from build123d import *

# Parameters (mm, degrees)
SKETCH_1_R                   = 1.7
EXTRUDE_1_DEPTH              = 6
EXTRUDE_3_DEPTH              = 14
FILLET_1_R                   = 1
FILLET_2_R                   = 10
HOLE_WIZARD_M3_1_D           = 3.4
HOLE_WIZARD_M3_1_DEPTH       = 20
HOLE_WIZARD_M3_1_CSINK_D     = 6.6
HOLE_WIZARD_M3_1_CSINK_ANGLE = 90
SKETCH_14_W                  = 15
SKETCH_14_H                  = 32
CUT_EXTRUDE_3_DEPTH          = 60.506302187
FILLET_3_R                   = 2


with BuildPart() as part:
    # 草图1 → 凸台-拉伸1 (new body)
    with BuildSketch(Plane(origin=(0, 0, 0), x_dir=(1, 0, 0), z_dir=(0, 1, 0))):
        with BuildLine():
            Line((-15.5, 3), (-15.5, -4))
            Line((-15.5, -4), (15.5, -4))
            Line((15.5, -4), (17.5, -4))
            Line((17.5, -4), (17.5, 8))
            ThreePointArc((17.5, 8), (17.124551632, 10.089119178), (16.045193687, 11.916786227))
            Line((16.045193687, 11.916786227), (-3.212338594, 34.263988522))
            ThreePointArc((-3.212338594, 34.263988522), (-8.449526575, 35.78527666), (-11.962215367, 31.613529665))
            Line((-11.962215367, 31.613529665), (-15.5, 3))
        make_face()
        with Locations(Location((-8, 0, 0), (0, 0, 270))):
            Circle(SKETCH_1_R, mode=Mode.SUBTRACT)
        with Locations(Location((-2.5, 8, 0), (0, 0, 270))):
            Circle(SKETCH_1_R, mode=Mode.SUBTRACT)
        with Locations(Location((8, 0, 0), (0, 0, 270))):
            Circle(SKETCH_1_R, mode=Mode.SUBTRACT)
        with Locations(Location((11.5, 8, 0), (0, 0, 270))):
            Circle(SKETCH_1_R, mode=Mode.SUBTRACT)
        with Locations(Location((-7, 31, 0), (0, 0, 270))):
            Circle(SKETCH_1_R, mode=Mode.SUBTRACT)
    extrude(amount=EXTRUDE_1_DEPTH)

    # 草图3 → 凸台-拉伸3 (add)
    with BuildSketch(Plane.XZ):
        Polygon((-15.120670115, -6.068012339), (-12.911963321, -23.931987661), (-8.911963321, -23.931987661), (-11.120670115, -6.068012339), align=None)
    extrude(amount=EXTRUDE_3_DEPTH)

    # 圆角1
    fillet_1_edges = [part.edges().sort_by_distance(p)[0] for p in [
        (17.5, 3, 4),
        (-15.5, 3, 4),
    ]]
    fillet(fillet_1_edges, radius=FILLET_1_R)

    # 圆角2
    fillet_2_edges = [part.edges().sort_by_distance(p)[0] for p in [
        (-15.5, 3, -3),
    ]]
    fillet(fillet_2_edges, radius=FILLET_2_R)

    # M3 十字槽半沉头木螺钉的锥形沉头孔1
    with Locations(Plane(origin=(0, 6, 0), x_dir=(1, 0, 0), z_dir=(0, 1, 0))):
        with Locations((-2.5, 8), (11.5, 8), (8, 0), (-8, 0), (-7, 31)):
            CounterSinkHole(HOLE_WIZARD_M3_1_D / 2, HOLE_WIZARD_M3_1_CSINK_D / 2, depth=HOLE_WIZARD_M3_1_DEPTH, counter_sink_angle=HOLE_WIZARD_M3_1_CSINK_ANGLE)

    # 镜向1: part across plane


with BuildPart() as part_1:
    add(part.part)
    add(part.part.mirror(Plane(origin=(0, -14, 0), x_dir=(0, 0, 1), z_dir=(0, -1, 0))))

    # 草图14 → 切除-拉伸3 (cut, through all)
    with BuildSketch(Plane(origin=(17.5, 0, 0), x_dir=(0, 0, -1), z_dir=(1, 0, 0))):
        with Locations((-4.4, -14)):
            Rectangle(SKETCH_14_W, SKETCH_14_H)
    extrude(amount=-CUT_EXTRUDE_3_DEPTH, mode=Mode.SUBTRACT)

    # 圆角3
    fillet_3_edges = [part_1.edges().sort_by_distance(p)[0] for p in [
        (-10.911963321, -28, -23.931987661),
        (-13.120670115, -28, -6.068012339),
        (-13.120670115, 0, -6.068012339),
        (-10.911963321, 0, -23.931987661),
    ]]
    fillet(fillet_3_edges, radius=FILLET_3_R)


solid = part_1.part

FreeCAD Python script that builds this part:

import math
import FreeCAD as App
import Part
import Sketcher
Q = App.Units.Quantity


def edges_at(feature, points):
    """Names of the edges that pass closest to the given points."""
    edges = feature.Shape.Edges
    near = lambda p: min(range(len(edges)), key=lambda i: edges[i].distToShape(Part.Vertex(*p))[0])
    return sorted({f"Edge{near(p) + 1}" for p in points})

doc = App.newDocument("Part")
body = doc.addObject("PartDesign::Body", "Body")

# Sketch on XZ plane
sketch1 = body.newObject("Sketcher::SketchObject", "Sketch")
sketch1.AttachmentSupport = (doc.getObject("XZ_Plane"), [""])
sketch1.MapMode = "FlatFace"
sketch1.addGeometry([
    Part.LineSegment(App.Vector(-15.5, -3, 0), App.Vector(-15.5, 4, 0)),  # 0
    Part.LineSegment(App.Vector(-15.5, 4, 0), App.Vector(17.5, 4, 0)),  # 1
    Part.LineSegment(App.Vector(17.5, 4, 0), App.Vector(17.5, -8, 0)),  # 2
    Part.ArcOfCircle(Part.Circle(App.Vector(11.5, -8, 0), App.Vector(0, 0, 1), 6), math.radians(-41), math.radians(0)),  # 3
    Part.LineSegment(App.Vector(16, -11.9, 0), App.Vector(-3.2, -34.3, 0)),  # 4
    Part.ArcOfCircle(Part.Circle(App.Vector(-7, -31, 0), App.Vector(0, 0, 1), 5), math.radians(-173), math.radians(-41)),  # 5
    Part.LineSegment(App.Vector(-12, -31.6, 0), App.Vector(-15.5, -3, 0)),  # 6
    Part.Circle(App.Vector(-8, 0, 0), App.Vector(0, 0, 1), 1.7),  # 7
    Part.Circle(App.Vector(-2.5, -8, 0), App.Vector(0, 0, 1), 1.7),  # 8
    Part.Circle(App.Vector(8, 0, 0), App.Vector(0, 0, 1), 1.7),  # 9
    Part.Circle(App.Vector(11.5, -8, 0), App.Vector(0, 0, 1), 1.7),  # 10
    Part.Circle(App.Vector(-7, -31, 0), App.Vector(0, 0, 1), 1.7),  # 11
], False)
sketch1.addConstraint([
    Sketcher.Constraint("Coincident", 0, 2, 1, 1),
    Sketcher.Constraint("Coincident", 1, 2, 2, 1),
    Sketcher.Constraint("Tangent", 2, 2, 3, 2),
    Sketcher.Constraint("Tangent", 3, 1, 4, 1),
    Sketcher.Constraint("Tangent", 4, 2, 5, 2),
    Sketcher.Constraint("Tangent", 5, 1, 6, 1),
    Sketcher.Constraint("Coincident", 6, 2, 0, 1),
    Sketcher.Constraint("Vertical", 0),
    Sketcher.Constraint("Horizontal", 1),
    Sketcher.Constraint("Vertical", 2),
    Sketcher.Constraint("Coincident", 10, 3, 3, 3),
    Sketcher.Constraint("Coincident", 11, 3, 5, 3),
    Sketcher.Constraint("Equal", 7, 8),
    Sketcher.Constraint("Equal", 8, 9),
    Sketcher.Constraint("Equal", 9, 10),
    Sketcher.Constraint("Equal", 10, 11),
    Sketcher.Constraint("Symmetric", 7, 3, 9, 3, -1, 1),
    Sketcher.Constraint("PointOnObject", 7, 3, -1),
    Sketcher.Constraint("Horizontal", 3, 3, 8, 3),
    Sketcher.Constraint("Radius", 3, Q("6 mm")),
    Sketcher.Constraint("Radius", 5, Q("5 mm")),
    Sketcher.Constraint("Diameter", 7, Q("3.4 mm")),
    Sketcher.Constraint("DistanceX", 1, 1, 1, 2, Q("33 mm")),
    Sketcher.Constraint("DistanceY", 0, 1, 0, 2, Q("7 mm")),
    Sketcher.Constraint("DistanceY", 2, 2, 2, 1, Q("12 mm")),
    Sketcher.Constraint("DistanceY", 3, 3, -1, 1, Q("8 mm")),
    Sketcher.Constraint("DistanceX", 5, 3, -1, 1, Q("7 mm")),
    Sketcher.Constraint("DistanceY", 5, 3, -1, 1, Q("31 mm")),
    Sketcher.Constraint("DistanceX", 7, 3, -1, 1, Q("8 mm")),
    Sketcher.Constraint("DistanceX", 8, 3, 3, 3, Q("14 mm")),
    Sketcher.Constraint("Distance", 4, Q("29.5 mm")),
])
pad1 = body.newObject("PartDesign::Pad", "Pad")
pad1.Profile = sketch1
pad1.Length = 6
pad1.Reversed = True

# Sketch on XZ plane
sketch2 = body.newObject("Sketcher::SketchObject", "Sketch001")
sketch2.AttachmentSupport = (doc.getObject("XZ_Plane"), [""])
sketch2.MapMode = "FlatFace"
sketch2.addGeometry([
    Part.LineSegment(App.Vector(-15.1, -6.1, 0), App.Vector(-12.9, -23.9, 0)),
    Part.LineSegment(App.Vector(-12.9, -23.9, 0), App.Vector(-8.9, -23.9, 0)),
    Part.LineSegment(App.Vector(-8.9, -23.9, 0), App.Vector(-11.1, -6.1, 0)),
    Part.LineSegment(App.Vector(-11.1, -6.1, 0), App.Vector(-15.1, -6.1, 0)),
], False)
sketch2.addConstraint([
    Sketcher.Constraint("Coincident", 0, 2, 1, 1),
    Sketcher.Constraint("Coincident", 1, 2, 2, 1),
    Sketcher.Constraint("Coincident", 2, 2, 3, 1),
    Sketcher.Constraint("Coincident", 3, 2, 0, 1),
    Sketcher.Constraint("Horizontal", 1),
    Sketcher.Constraint("Horizontal", 3),
    Sketcher.Constraint("Parallel", 0, 2),
    Sketcher.Constraint("DistanceX", 1, 1, 1, 2, Q("4 mm")),
    Sketcher.Constraint("Distance", 0, Q("18 mm")),
    Sketcher.Constraint("DistanceX", 2, 2, -1, 1, Q("11.12067 mm")),
    Sketcher.Constraint("DistanceX", 0, 2, -1, 1, Q("12.911963 mm")),
    Sketcher.Constraint("DistanceY", 0, 2, -1, 1, Q("23.931988 mm")),
])
pad2 = body.newObject("PartDesign::Pad", "Pad001")
pad2.Profile = sketch2
pad2.Length = 14
doc.recompute()

fillet = body.newObject("PartDesign::Fillet", "Fillet")
fillet.Base = (pad2, edges_at(pad2, [(17.5, 3, 4), (-15.5, 3, 4)]))
fillet.Radius = 1
doc.recompute()

fillet2 = body.newObject("PartDesign::Fillet", "Fillet001")
fillet2.Base = (fillet, edges_at(fillet, [(-15.5, 3, -3)]))
fillet2.Radius = 10

# Sketch on XZ plane
sketch3 = body.newObject("Sketcher::SketchObject", "Sketch002")
sketch3.AttachmentSupport = (doc.getObject("XZ_Plane"), [""])
sketch3.MapMode = "FlatFace"
sketch3.AttachmentOffset = App.Placement(App.Vector(0, 0, -6), App.Rotation())
sketch3.addGeometry([
    Part.Circle(App.Vector(-2.5, -8, 0), App.Vector(0, 0, 1), 1.7),  # 0
    Part.Circle(App.Vector(11.5, -8, 0), App.Vector(0, 0, 1), 1.7),  # 1
    Part.Circle(App.Vector(8, 0, 0), App.Vector(0, 0, 1), 1.7),  # 2
    Part.Circle(App.Vector(-8, 0, 0), App.Vector(0, 0, 1), 1.7),  # 3
    Part.Circle(App.Vector(-7, -31, 0), App.Vector(0, 0, 1), 1.7),  # 4
], False)
sketch3.addConstraint([
    Sketcher.Constraint("Equal", 0, 1),
    Sketcher.Constraint("Equal", 1, 2),
    Sketcher.Constraint("Equal", 2, 3),
    Sketcher.Constraint("Equal", 3, 4),
    Sketcher.Constraint("Symmetric", 2, 3, 3, 3, -1, 1),
    Sketcher.Constraint("PointOnObject", 2, 3, -1),
    Sketcher.Constraint("Horizontal", 0, 3, 1, 3),
    Sketcher.Constraint("Diameter", 0, Q("3.4 mm")),
    Sketcher.Constraint("DistanceY", 0, 3, -1, 1, Q("8 mm")),
    Sketcher.Constraint("DistanceX", -1, 1, 2, 3, Q("8 mm")),
    Sketcher.Constraint("DistanceX", 4, 3, -1, 1, Q("7 mm")),
    Sketcher.Constraint("DistanceY", 4, 3, -1, 1, Q("31 mm")),
    Sketcher.Constraint("DistanceX", 0, 3, 1, 3, Q("14 mm")),
    Sketcher.Constraint("DistanceX", 0, 3, -1, 1, Q("2.5 mm")),
])
doc.recompute()
hole = body.newObject("PartDesign::Hole", "Hole")
hole.Profile = sketch3
hole.ThreadType = "None"
hole.Diameter = 3.4
hole.DepthType = "Dimension"
hole.Depth = 20
hole.DrillPoint = "Flat"
hole.HoleCutType = "Countersink"
hole.HoleCutDiameter = 6.6
hole.HoleCutCountersinkAngle = 90
hole.Reversed = True
body2 = doc.addObject("PartDesign::Body", "Body001")
doc.recompute()

body2.BaseFeature = body
doc.recompute()

mirroring = doc.addObject("Part::Mirroring", "Mirroring")
mirroring.Source = body
mirroring.Base = App.Vector(0, -14, 0)
mirroring.Normal = App.Vector(0, -1, 0)
body3 = doc.addObject("PartDesign::Body", "Body002")
body3.BaseFeature = mirroring
boolean = body2.newObject("PartDesign::Boolean", "Boolean")
boolean.Type = "Fuse"
boolean.addObjects([body3])
doc.recompute()

# Sketch on YZ plane
sketch4 = body2.newObject("Sketcher::SketchObject", "Sketch003")
sketch4.AttachmentSupport = (doc.getObject("YZ_Plane001"), [""])
sketch4.MapMode = "FlatFace"
sketch4.AttachmentOffset = App.Placement(App.Vector(0, 0, 17.5), App.Rotation())
sketch4.addGeometry([
    Part.LineSegment(App.Vector(2, 12, 0), App.Vector(-30, 12, 0)),
    Part.LineSegment(App.Vector(-30, 12, 0), App.Vector(-30, -3, 0)),
    Part.LineSegment(App.Vector(-30, -3, 0), App.Vector(2, -3, 0)),
    Part.LineSegment(App.Vector(2, -3, 0), App.Vector(2, 12, 0)),
], False)
sketch4.addConstraint([
    Sketcher.Constraint("Coincident", 0, 2, 1, 1),
    Sketcher.Constraint("Coincident", 1, 2, 2, 1),
    Sketcher.Constraint("Coincident", 2, 2, 3, 1),
    Sketcher.Constraint("Coincident", 3, 2, 0, 1),
    Sketcher.Constraint("Horizontal", 0),
    Sketcher.Constraint("Vertical", 1),
    Sketcher.Constraint("Horizontal", 2),
    Sketcher.Constraint("Vertical", 3),
    Sketcher.Constraint("DistanceX", 0, 2, 0, 1, Q("32 mm")),
    Sketcher.Constraint("DistanceY", 1, 2, 1, 1, Q("15 mm")),
    Sketcher.Constraint("DistanceX", 0, 2, -1, 1, Q("30 mm")),
    Sketcher.Constraint("DistanceY", -1, 1, 0, 2, Q("11.9 mm")),
])
pocket1 = body2.newObject("PartDesign::Pocket", "Pocket")
pocket1.Profile = sketch4
pocket1.Type = "ThroughAll"
doc.recompute()

fillet3 = body2.newObject("PartDesign::Fillet", "Fillet002")
fillet3.Base = (pocket1, edges_at(pocket1, [
    (-10.912, -28, -23.932),
    (-13.121, -28, -6.068),
    (-13.121, 0, -6.068),
    (-10.912, 0, -23.932),
]))
fillet3.Radius = 2
mirroring.Visibility = False

doc.recompute()
